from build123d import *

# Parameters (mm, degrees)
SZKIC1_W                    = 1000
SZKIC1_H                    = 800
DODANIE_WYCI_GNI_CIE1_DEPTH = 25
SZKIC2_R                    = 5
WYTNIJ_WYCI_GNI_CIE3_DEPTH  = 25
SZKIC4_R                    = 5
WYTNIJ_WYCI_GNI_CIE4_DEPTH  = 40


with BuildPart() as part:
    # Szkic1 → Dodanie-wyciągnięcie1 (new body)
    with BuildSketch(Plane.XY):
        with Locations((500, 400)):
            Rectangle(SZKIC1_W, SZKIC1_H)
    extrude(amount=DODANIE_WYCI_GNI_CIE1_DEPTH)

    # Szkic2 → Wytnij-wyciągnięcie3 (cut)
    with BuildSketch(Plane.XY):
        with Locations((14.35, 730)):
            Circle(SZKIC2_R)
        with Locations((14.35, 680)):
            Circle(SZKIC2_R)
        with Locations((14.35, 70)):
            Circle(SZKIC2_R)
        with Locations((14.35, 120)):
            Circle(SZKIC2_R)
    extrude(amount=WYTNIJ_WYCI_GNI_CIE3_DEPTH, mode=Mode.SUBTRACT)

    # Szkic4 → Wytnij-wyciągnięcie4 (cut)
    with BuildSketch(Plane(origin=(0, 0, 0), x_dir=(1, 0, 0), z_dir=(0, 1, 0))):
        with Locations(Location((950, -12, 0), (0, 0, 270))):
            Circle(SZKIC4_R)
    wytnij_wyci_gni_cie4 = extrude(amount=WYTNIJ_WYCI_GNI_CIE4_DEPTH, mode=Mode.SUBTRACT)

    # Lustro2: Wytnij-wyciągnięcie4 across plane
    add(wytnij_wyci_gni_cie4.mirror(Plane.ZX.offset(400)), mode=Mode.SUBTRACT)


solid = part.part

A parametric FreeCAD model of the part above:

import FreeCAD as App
import Part
import Sketcher
from FreeCAD import Vector

doc = App.newDocument("Part")
body = doc.addObject("PartDesign::Body", "Body")

# Sketch on XY plane
sketch1 = doc.addObject("Sketcher::SketchObject", "Sketch")
body.addObject(sketch1)
sketch1.AttachmentSupport = (doc.XY_Plane, [""])
sketch1.MapMode = "FlatFace"
sketch1.addGeometry([
    Part.LineSegment(Vector(0, 800, 0), Vector(0, 0, 0)),
    Part.LineSegment(Vector(0, 0, 0), Vector(1000, 0, 0)),
    Part.LineSegment(Vector(1000, 0, 0), Vector(1000, 800, 0)),
    Part.LineSegment(Vector(1000, 800, 0), Vector(0, 800, 0)),
], False)
sketch1.addConstraint([
    Sketcher.Constraint("Coincident", 0, 2, 1, 1),
    Sketcher.Constraint("Coincident", 1, 2, 2, 1),
    Sketcher.Constraint("Coincident", 2, 2, 3, 1),
    Sketcher.Constraint("Coincident", 3, 2, 0, 1),
    Sketcher.Constraint("Vertical", 0),
    Sketcher.Constraint("Horizontal", 1),
    Sketcher.Constraint("Vertical", 2),
    Sketcher.Constraint("Horizontal", 3),
    Sketcher.Constraint("Coincident", 0, 2, -1, 1),
    Sketcher.Constraint("DistanceX", 1, 1, 1, 2, 1000.0),
    Sketcher.Constraint("DistanceY", 0, 2, 0, 1, 800.0),
])
pad1 = doc.addObject("PartDesign::Pad", "Pad")
body.addObject(pad1)
pad1.Profile = sketch1
pad1.Length = 25

# Sketch on XY plane
sketch2 = doc.addObject("Sketcher::SketchObject", "Sketch001")
body.addObject(sketch2)
sketch2.AttachmentSupport = (doc.XY_Plane, [""])
sketch2.MapMode = "FlatFace"
sketch2.addGeometry([
    Part.Circle(Vector(14, 730, 0), Vector(0, 0, 1), 5),
    Part.Circle(Vector(14, 680, 0), Vector(0, 0, 1), 5),
    Part.Circle(Vector(14, 70, 0), Vector(0, 0, 1), 5),
    Part.Circle(Vector(14, 120, 0), Vector(0, 0, 1), 5),
], False)
sketch2.addConstraint([
    Sketcher.Constraint("Equal", 0, 1),
    Sketcher.Constraint("Equal", 1, 2),
    Sketcher.Constraint("Equal", 2, 3),
    Sketcher.Constraint("Vertical", 0, 3, 1, 3),
    Sketcher.Constraint("Vertical", 1, 3, 2, 3),
    Sketcher.Constraint("Vertical", 2, 3, 3, 3),
    Sketcher.Constraint("Diameter", 0, 10.0),
    Sketcher.Constraint("DistanceY", -1, 1, 0, 3, 730.0),
    Sketcher.Constraint("DistanceY", -1, 1, 1, 3, 680.0),
    Sketcher.Constraint("DistanceY", -1, 1, 2, 3, 70.0),
    Sketcher.Constraint("DistanceY", -1, 1, 3, 3, 120.0),
    Sketcher.Constraint("DistanceX", -1, 1, 0, 3, 14.35),
])
pocket1 = doc.addObject("PartDesign::Pocket", "Pocket")
body.addObject(pocket1)
pocket1.Profile = sketch2
pocket1.Length = 25
pocket1.Reversed = True

# Sketch on XZ plane
sketch3 = doc.addObject("Sketcher::SketchObject", "Sketch002")
body.addObject(sketch3)
sketch3.AttachmentSupport = (doc.XZ_Plane, [""])
sketch3.MapMode = "FlatFace"
sketch3.addGeometry(Part.Circle(Vector(950, 12, 0), Vector(0, 0, 1), 5), False)
sketch3.addConstraint([
    Sketcher.Constraint("Diameter", 0, 10.0),
    Sketcher.Constraint("DistanceX", -1, 1, 0, 3, 950.0),
    Sketcher.Constraint("DistanceY", -1, 1, 0, 3, 12.0),
])
pocket2 = doc.addObject("PartDesign::Pocket", "Pocket001")
body.addObject(pocket2)
pocket2.Profile = sketch3
pocket2.Length = 40
doc.recompute()

datumplane = doc.addObject("PartDesign::Plane", "DatumPlane")
body.addObject(datumplane)
datumplane.AttachmentSupport = (doc.XZ_Plane, [""])
datumplane.MapMode = "FlatFace"
datumplane.AttachmentOffset = App.Placement(Vector(0, 0, -400), App.Rotation())
mirrored = doc.addObject("PartDesign::Mirrored", "Mirrored")
body.addObject(mirrored)
mirrored.Originals = [pocket2]
mirrored.MirrorPlane = (datumplane, [""])
body.Tip = mirrored

doc.recompute()
